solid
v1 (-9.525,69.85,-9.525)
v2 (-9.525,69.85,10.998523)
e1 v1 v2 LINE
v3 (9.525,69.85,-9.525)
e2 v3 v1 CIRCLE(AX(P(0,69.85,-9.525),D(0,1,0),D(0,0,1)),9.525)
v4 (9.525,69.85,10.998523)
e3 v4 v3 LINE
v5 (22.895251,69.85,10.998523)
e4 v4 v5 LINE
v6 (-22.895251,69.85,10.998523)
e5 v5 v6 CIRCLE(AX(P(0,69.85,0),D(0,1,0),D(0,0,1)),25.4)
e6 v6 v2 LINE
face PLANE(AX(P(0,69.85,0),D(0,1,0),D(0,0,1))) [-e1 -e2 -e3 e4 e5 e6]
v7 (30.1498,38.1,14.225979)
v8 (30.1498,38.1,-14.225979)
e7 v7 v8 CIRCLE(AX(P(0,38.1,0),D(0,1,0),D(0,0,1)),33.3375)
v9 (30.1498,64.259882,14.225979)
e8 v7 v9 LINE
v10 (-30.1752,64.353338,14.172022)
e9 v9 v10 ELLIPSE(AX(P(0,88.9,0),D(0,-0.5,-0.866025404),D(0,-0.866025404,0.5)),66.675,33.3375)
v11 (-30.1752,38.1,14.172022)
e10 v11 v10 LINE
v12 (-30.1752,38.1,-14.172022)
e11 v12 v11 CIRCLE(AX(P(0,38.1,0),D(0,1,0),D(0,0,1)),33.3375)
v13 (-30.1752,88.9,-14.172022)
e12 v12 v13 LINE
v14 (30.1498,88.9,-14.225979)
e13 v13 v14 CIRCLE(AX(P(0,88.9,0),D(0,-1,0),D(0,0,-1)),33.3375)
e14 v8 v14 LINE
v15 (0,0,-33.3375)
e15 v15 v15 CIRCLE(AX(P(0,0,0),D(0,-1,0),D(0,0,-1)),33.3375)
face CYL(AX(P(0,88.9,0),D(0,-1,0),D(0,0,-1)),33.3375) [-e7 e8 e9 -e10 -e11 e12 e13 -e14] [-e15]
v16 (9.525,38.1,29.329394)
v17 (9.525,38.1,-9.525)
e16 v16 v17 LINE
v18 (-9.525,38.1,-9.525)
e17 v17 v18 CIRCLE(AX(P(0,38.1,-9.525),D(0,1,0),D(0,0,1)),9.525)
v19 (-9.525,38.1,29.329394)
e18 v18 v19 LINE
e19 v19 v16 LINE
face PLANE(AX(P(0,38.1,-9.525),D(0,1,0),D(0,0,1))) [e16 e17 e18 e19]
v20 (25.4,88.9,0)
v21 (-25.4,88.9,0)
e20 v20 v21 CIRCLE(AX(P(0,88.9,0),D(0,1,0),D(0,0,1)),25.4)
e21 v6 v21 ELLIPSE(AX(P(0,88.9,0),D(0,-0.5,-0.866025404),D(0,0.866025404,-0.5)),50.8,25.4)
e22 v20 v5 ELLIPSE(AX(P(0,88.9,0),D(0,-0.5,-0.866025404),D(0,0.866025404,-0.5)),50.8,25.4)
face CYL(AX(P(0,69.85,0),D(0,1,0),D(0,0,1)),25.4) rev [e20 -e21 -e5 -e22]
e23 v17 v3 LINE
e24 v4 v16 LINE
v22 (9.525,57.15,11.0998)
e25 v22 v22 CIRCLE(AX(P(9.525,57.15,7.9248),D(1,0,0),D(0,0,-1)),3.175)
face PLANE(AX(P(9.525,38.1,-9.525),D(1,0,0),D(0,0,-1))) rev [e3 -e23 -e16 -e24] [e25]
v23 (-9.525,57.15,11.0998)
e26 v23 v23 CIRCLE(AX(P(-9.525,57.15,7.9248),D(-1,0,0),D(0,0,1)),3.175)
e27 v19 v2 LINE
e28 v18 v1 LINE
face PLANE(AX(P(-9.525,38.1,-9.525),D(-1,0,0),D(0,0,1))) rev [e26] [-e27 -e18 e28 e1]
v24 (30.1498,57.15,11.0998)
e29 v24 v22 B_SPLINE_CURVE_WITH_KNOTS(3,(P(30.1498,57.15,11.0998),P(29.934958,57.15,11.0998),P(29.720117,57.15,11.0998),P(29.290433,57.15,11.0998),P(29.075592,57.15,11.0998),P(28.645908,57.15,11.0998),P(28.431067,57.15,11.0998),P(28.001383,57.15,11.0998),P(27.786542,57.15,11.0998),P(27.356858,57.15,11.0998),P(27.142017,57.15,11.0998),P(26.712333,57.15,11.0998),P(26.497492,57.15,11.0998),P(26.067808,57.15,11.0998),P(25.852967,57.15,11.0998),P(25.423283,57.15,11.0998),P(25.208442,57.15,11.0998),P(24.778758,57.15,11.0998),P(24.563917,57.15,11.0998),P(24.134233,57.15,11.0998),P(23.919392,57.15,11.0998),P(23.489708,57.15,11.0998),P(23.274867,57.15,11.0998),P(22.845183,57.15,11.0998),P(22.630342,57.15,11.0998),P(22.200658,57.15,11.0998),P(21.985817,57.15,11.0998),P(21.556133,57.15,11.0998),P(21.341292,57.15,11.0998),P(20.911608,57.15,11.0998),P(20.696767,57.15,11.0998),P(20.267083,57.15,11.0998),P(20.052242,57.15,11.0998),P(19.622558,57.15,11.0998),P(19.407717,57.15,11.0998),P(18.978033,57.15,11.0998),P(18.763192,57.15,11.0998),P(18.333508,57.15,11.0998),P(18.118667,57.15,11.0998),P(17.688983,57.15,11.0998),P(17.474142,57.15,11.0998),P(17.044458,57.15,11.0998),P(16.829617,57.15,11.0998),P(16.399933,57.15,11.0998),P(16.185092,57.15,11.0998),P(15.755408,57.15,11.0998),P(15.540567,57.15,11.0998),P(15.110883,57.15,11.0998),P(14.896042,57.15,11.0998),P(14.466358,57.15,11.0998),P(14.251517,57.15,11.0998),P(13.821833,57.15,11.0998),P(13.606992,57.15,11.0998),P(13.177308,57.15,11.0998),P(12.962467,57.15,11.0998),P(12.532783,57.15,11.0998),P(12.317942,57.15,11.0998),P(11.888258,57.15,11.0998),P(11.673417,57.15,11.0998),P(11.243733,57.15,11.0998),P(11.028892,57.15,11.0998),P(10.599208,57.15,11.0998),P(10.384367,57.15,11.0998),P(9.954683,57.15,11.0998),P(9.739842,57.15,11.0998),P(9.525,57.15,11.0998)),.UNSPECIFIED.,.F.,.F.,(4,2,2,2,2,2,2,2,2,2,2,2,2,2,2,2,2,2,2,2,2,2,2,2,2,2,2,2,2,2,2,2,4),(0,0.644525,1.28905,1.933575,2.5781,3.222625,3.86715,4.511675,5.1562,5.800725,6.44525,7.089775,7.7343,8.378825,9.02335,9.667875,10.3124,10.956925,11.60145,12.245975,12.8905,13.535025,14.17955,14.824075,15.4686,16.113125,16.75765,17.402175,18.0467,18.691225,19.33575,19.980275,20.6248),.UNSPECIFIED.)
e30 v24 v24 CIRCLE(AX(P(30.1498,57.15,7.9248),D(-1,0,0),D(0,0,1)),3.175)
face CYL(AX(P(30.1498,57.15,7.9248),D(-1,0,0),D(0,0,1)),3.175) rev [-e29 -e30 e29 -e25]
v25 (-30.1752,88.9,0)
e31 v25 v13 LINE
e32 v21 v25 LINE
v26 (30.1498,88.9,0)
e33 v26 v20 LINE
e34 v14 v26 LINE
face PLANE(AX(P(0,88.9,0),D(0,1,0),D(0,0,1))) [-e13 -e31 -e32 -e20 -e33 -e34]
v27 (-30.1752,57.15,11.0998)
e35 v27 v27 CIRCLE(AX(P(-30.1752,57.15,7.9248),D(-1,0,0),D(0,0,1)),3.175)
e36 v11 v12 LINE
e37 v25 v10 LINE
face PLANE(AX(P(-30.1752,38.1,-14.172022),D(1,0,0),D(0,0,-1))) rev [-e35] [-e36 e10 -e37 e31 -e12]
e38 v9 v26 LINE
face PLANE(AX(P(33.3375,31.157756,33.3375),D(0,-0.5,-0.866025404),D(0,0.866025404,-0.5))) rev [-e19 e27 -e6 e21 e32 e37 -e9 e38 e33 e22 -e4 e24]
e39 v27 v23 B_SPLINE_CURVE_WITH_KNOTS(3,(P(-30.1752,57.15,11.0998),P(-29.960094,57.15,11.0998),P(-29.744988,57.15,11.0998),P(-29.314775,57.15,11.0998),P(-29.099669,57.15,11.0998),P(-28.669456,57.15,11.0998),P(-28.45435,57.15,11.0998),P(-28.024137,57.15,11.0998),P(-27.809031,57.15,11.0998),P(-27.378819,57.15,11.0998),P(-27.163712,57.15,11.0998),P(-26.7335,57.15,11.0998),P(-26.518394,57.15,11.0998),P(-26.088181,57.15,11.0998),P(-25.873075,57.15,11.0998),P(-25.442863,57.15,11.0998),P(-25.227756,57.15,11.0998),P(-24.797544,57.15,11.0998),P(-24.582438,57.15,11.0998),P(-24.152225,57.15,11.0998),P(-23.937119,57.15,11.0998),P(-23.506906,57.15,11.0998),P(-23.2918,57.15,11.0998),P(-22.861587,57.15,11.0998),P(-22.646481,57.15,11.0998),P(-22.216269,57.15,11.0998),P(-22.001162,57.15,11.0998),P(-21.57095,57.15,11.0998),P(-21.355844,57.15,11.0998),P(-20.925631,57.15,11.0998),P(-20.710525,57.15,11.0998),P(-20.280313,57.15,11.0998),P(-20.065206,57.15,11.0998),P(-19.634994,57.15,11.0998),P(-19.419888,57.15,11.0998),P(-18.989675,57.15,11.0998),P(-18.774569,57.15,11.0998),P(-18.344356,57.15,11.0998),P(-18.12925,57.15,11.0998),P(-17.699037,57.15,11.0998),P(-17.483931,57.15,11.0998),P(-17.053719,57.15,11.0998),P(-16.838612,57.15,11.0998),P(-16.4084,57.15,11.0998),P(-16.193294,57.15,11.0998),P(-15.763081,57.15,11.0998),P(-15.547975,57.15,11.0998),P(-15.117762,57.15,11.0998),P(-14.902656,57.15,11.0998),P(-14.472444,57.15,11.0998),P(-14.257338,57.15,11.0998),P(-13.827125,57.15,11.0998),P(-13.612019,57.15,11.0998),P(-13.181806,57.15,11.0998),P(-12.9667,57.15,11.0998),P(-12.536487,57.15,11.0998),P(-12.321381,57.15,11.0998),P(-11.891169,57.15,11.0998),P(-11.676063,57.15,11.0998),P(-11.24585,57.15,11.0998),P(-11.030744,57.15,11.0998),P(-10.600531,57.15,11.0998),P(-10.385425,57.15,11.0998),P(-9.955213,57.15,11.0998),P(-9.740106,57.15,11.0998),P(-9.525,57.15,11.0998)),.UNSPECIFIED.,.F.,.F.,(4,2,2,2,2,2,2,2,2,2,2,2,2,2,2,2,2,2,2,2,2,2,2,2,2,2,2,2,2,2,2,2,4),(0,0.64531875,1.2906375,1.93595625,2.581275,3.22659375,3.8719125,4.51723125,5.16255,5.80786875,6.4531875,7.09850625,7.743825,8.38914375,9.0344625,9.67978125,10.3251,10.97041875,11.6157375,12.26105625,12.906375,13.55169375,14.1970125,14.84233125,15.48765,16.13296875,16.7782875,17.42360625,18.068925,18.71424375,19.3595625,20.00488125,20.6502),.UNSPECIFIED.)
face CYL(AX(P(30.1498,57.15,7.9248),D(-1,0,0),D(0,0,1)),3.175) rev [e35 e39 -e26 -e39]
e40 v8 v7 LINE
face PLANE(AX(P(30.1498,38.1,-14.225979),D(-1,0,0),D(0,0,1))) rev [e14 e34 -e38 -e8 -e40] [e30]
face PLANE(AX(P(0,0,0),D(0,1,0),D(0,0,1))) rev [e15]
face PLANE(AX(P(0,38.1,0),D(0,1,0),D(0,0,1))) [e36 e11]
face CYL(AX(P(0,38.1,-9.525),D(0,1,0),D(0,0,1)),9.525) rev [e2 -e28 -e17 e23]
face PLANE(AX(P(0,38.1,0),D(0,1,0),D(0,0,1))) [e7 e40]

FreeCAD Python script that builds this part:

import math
import FreeCAD as App
import Part
import Sketcher

V = App.Vector
Q = App.Units.Quantity


def add_polygon(sketch, points):
    """Adds a closed chain of lines whose ends are joined by coincident constraints."""
    first, n = sketch.GeometryCount, len(points)
    for a, b in zip(points, points[1:] + points[:1]):
        sketch.addGeometry(Part.LineSegment(App.Vector(*a, 0), App.Vector(*b, 0)), False)
    for i in range(n):
        sketch.addConstraint(Sketcher.Constraint("Coincident", first + i, 2, first + (i + 1) % n, 1))

doc = App.newDocument("Part")
body = doc.addObject("PartDesign::Body", "Body")

sketch1 = doc.addObject("Sketcher::SketchObject", "Sketch")
body.addObject(sketch1)
sketch1.AttachmentSupport = (doc.XZ_Plane, [""])
sketch1.MapMode = "FlatFace"
add_polygon(sketch1, [(-33, -33), (-33, 33), (33, 33), (33, -33)])
sketch1.addConstraint([
    Sketcher.Constraint("Vertical", 0),
    Sketcher.Constraint("Horizontal", 1),
    Sketcher.Constraint("Vertical", 2),
    Sketcher.Constraint("Horizontal", 3),
    Sketcher.Constraint("Symmetric", 0, 2, 2, 2, -1, 1),
    Sketcher.Constraint("Equal", 3, 0),
    Sketcher.Constraint("DistanceX", 1, 1, 1, 2, Q("2.625 in")),
])
pad1 = doc.addObject("PartDesign::Pad", "Pad")
body.addObject(pad1)
pad1.Profile = sketch1
pad1.Length = Q("3.5 in")
pad1.Reversed = True

sketch2 = doc.addObject("Sketcher::SketchObject", "Sketch001")
body.addObject(sketch2)
sketch2.AttachmentSupport = (doc.YZ_Plane, [""])
sketch2.MapMode = "FlatFace"
sketch2.AttachmentOffset = App.Placement(V(0, 0, -1.3125 * 25.4), App.Rotation())
add_polygon(sketch2, [(89, 0), (31, 33), (89, 33)])
sketch2.addConstraint([
    Sketcher.Constraint("Horizontal", 1),
    Sketcher.Constraint("Vertical", 2),
    Sketcher.Constraint("PointOnObject", 2, 2, -1),
    Sketcher.Constraint("Angle", 0, Q("150 deg")),
    Sketcher.Constraint("DistanceX", -1, 1, 1, 2, Q("3.5 in")),
    Sketcher.Constraint("DistanceY", 2, 2, 2, 1, Q("1.3125 in")),
])
pocket1 = doc.addObject("PartDesign::Pocket", "Pocket")
body.addObject(pocket1)
pocket1.Profile = sketch2
pocket1.Type = "ThroughAll"
pocket1.Reversed = True

sketch3 = doc.addObject("Sketcher::SketchObject", "Sketch002")
body.addObject(sketch3)
sketch3.AttachmentSupport = (doc.XZ_Plane, [""])
sketch3.MapMode = "FlatFace"
add_polygon(sketch3, [(-47, 47), (-47, -47), (47, -47), (47, 47)])
sketch3.addGeometry(Part.Circle(V(0, 0, 0), V(0, 0, 1), 33), False)
sketch3.addConstraint([
    Sketcher.Constraint("Vertical", 0),
    Sketcher.Constraint("Horizontal", 1),
    Sketcher.Constraint("Vertical", 2),
    Sketcher.Constraint("Horizontal", 3),
    Sketcher.Constraint("Coincident", 4, 3, -1, 1),
    Sketcher.Constraint("Equal", 3, 0),
    Sketcher.Constraint("Diameter", 4, Q("2.625 in")),
    Sketcher.Constraint("DistanceX", 1, 1, 1, 2, Q("94.593 mm")),
    Sketcher.Constraint("DistanceX", 0, 2, -1, 1, Q("47.297 mm")),
    Sketcher.Constraint("DistanceY", 0, 2, -1, 1, Q("47.296 mm")),
])
pocket2 = doc.addObject("PartDesign::Pocket", "Pocket001")
body.addObject(pocket2)
pocket2.Profile = sketch3
pocket2.Length = Q("3.5 in")

sketch4 = doc.addObject("Sketcher::SketchObject", "Sketch003")
body.addObject(sketch4)
sketch4.AttachmentSupport = (doc.XZ_Plane, [""])
sketch4.MapMode = "FlatFace"
sketch4.AttachmentOffset = App.Placement(V(0, 0, -3.5 * 25.4), App.Rotation())
sketch4.addGeometry(Part.Circle(V(0, 0, 0), V(0, 0, 1), 25), False)
sketch4.addConstraint([
    Sketcher.Constraint("Coincident", 0, 3, -1, 1),
    Sketcher.Constraint("Diameter", 0, Q("2 in")),
])
pocket3 = doc.addObject("PartDesign::Pocket", "Pocket002")
body.addObject(pocket3)
pocket3.Profile = sketch4
pocket3.Length = Q("0.75 in")
pocket3.Reversed = True

sketch5 = doc.addObject("Sketcher::SketchObject", "Sketch004")
body.addObject(sketch5)
sketch5.AttachmentSupport = (doc.XZ_Plane, [""])
sketch5.MapMode = "FlatFace"
sketch5.AttachmentOffset = App.Placement(V(0, 0, -2.75 * 25.4), App.Rotation())
sketch5.addGeometry([
    Part.LineSegment(V(-10, -10, 0), V(-10, 32, 0)),
    Part.LineSegment(V(-10, 32, 0), V(10, 32, 0)),
    Part.LineSegment(V(10, 32, 0), V(10, -10, 0)),
    Part.ArcOfCircle(Part.Circle(V(0, -10, 0), V(0, 0, 1), 10), math.radians(180), math.radians(360)),
], False)
sketch5.addConstraint([
    Sketcher.Constraint("Coincident", 0, 2, 1, 1),
    Sketcher.Constraint("Coincident", 1, 2, 2, 1),
    Sketcher.Constraint("Tangent", 2, 2, 3, 2),
    Sketcher.Constraint("Tangent", 3, 1, 0, 1),
    Sketcher.Constraint("Vertical", 0),
    Sketcher.Constraint("Horizontal", 1),
    Sketcher.Constraint("Vertical", 2),
    Sketcher.Constraint("PointOnObject", 3, 3, -2),
    Sketcher.Constraint("Radius", 3, Q("0.375 in")),
    Sketcher.Constraint("DistanceY", 3, 3, -1, 1, Q("0.375 in")),
    Sketcher.Constraint("DistanceY", 0, 1, 0, 2, Q("41.472821 mm")),
])
pocket4 = doc.addObject("PartDesign::Pocket", "Pocket003")
body.addObject(pocket4)
pocket4.Profile = sketch5
pocket4.Length = Q("1.25 in")
pocket4.Reversed = True

sketch6 = doc.addObject("Sketcher::SketchObject", "Sketch005")
body.addObject(sketch6)
sketch6.AttachmentSupport = (doc.XZ_Plane, [""])
sketch6.MapMode = "FlatFace"
sketch6.AttachmentOffset = App.Placement(V(0, 0, -1.5 * 25.4), App.Rotation())
sketch6.addGeometry([
    Part.LineSegment(V(-30, 14, 0), V(-30, -14, 0)),
    Part.ArcOfCircle(Part.Circle(V(0, 0, 0), V(0, 0, 1), 33), math.radians(155), math.radians(205)),
    Part.LineSegment(V(30, -14, 0), V(30, 14, 0)),
    Part.ArcOfCircle(Part.Circle(V(0, 0, 0), V(0, 0, 1), 33), math.radians(-25), math.radians(25)),
], False)
sketch6.addConstraint([
    Sketcher.Constraint("Coincident", 0, 1, 1, 1),
    Sketcher.Constraint("Coincident", 1, 2, 0, 2),
    Sketcher.Constraint("Coincident", 2, 1, 3, 1),
    Sketcher.Constraint("Coincident", 3, 2, 2, 2),
    Sketcher.Constraint("Vertical", 0),
    Sketcher.Constraint("Vertical", 2),
    Sketcher.Constraint("Coincident", 1, 3, -1, 1),
    Sketcher.Constraint("Coincident", 3, 3, -1, 1),
    Sketcher.Constraint("Equal", 1, 3),
    Sketcher.Constraint("Radius", 1, Q("1.3125 in")),
    Sketcher.Constraint("DistanceX", 0, 1, -1, 1, Q("1.188 in")),
    Sketcher.Constraint("DistanceX", -1, 1, 2, 1, Q("1.187 in")),
])
pocket5 = doc.addObject("PartDesign::Pocket", "Pocket004")
body.addObject(pocket5)
pocket5.Profile = sketch6
pocket5.Length = Q("2 in")

sketch7 = doc.addObject("Sketcher::SketchObject", "Sketch006")
body.addObject(sketch7)
sketch7.AttachmentSupport = (doc.YZ_Plane, [""])
sketch7.MapMode = "FlatFace"
sketch7.AttachmentOffset = App.Placement(V(0, 0, -1.188 * 25.4), App.Rotation())
sketch7.addGeometry(Part.Circle(V(57.1, 7.9, 0), V(0, 0, 1), 3.2), False)
sketch7.addConstraint([
    Sketcher.Constraint("Diameter", 0, Q("0.25 in")),
    Sketcher.Constraint("DistanceX", -1, 1, 0, 3, Q("2.25 in")),
    Sketcher.Constraint("DistanceY", -1, 1, 0, 3, Q("0.312 in")),
])
pocket6 = doc.addObject("PartDesign::Pocket", "Pocket005")
body.addObject(pocket6)
pocket6.Profile = sketch7
pocket6.Length = Q("2.375 in")
pocket6.Reversed = True

doc.recompute()
